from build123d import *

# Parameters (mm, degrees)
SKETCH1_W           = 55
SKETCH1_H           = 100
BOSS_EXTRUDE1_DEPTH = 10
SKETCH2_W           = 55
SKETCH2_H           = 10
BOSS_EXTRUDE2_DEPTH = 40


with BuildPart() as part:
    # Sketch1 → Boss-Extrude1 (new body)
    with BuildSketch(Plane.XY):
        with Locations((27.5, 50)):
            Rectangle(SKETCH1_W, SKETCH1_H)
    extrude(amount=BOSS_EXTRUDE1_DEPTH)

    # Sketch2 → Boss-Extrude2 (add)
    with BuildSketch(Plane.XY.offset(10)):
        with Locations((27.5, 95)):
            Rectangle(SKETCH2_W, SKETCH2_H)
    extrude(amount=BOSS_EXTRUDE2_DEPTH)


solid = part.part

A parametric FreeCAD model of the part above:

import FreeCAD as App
import Part
import Sketcher
from FreeCAD import Vector


def add_polygon(sketch, points):
    """Adds a closed chain of lines whose ends are joined by coincident constraints."""
    first, n = sketch.GeometryCount, len(points)
    for a, b in zip(points, points[1:] + points[:1]):
        sketch.addGeometry(Part.LineSegment(App.Vector(*a, 0), App.Vector(*b, 0)), False)
    for i in range(n):
        sketch.addConstraint(Sketcher.Constraint("Coincident", first + i, 2, first + (i + 1) % n, 1))

doc = App.newDocument("Part")
body = doc.addObject("PartDesign::Body", "Body")

# Sketch on XY plane
sketch1 = body.newObject("Sketcher::SketchObject", "Sketch")
sketch1.AttachmentSupport = (doc.getObject("XY_Plane"), [""])
sketch1.MapMode = "FlatFace"
add_polygon(sketch1, [(0, 100), (0, 0), (55, 0), (55, 100)])  # lines 0-3
sketch1.addConstraint([
    Sketcher.Constraint("Vertical", 0),
    Sketcher.Constraint("Horizontal", 1),
    Sketcher.Constraint("Vertical", 2),
    Sketcher.Constraint("Horizontal", 3),
    Sketcher.Constraint("Coincident", 0, 2, -1, 1),
    Sketcher.Constraint("DistanceX", 1, 1, 1, 2, 55.0),
    Sketcher.Constraint("DistanceY", 0, 2, 0, 1, 100.0),
])
pad1 = body.newObject("PartDesign::Pad", "Pad")
pad1.Profile = sketch1
pad1.Length = 10

# Sketch on XY plane
sketch2 = body.newObject("Sketcher::SketchObject", "Sketch001")
sketch2.AttachmentSupport = (doc.getObject("XY_Plane"), [""])
sketch2.MapMode = "FlatFace"
sketch2.AttachmentOffset = App.Placement(Vector(0, 0, 10), App.Rotation())
add_polygon(sketch2, [(0, 100), (0, 90), (55, 90), (55, 100)])  # lines 0-3
sketch2.addConstraint([
    Sketcher.Constraint("Vertical", 0),
    Sketcher.Constraint("Horizontal", 1),
    Sketcher.Constraint("Vertical", 2),
    Sketcher.Constraint("Horizontal", 3),
    Sketcher.Constraint("PointOnObject", 0, 2, -2),
    Sketcher.Constraint("DistanceX", 1, 1, 1, 2, 55.0),
    Sketcher.Constraint("DistanceY", 0, 2, 0, 1, 10.0),
    Sketcher.Constraint("DistanceY", -1, 1, 0, 2, 90.0),
])
pad2 = body.newObject("PartDesign::Pad", "Pad001")
pad2.Profile = sketch2
pad2.Length = 40

doc.recompute()
